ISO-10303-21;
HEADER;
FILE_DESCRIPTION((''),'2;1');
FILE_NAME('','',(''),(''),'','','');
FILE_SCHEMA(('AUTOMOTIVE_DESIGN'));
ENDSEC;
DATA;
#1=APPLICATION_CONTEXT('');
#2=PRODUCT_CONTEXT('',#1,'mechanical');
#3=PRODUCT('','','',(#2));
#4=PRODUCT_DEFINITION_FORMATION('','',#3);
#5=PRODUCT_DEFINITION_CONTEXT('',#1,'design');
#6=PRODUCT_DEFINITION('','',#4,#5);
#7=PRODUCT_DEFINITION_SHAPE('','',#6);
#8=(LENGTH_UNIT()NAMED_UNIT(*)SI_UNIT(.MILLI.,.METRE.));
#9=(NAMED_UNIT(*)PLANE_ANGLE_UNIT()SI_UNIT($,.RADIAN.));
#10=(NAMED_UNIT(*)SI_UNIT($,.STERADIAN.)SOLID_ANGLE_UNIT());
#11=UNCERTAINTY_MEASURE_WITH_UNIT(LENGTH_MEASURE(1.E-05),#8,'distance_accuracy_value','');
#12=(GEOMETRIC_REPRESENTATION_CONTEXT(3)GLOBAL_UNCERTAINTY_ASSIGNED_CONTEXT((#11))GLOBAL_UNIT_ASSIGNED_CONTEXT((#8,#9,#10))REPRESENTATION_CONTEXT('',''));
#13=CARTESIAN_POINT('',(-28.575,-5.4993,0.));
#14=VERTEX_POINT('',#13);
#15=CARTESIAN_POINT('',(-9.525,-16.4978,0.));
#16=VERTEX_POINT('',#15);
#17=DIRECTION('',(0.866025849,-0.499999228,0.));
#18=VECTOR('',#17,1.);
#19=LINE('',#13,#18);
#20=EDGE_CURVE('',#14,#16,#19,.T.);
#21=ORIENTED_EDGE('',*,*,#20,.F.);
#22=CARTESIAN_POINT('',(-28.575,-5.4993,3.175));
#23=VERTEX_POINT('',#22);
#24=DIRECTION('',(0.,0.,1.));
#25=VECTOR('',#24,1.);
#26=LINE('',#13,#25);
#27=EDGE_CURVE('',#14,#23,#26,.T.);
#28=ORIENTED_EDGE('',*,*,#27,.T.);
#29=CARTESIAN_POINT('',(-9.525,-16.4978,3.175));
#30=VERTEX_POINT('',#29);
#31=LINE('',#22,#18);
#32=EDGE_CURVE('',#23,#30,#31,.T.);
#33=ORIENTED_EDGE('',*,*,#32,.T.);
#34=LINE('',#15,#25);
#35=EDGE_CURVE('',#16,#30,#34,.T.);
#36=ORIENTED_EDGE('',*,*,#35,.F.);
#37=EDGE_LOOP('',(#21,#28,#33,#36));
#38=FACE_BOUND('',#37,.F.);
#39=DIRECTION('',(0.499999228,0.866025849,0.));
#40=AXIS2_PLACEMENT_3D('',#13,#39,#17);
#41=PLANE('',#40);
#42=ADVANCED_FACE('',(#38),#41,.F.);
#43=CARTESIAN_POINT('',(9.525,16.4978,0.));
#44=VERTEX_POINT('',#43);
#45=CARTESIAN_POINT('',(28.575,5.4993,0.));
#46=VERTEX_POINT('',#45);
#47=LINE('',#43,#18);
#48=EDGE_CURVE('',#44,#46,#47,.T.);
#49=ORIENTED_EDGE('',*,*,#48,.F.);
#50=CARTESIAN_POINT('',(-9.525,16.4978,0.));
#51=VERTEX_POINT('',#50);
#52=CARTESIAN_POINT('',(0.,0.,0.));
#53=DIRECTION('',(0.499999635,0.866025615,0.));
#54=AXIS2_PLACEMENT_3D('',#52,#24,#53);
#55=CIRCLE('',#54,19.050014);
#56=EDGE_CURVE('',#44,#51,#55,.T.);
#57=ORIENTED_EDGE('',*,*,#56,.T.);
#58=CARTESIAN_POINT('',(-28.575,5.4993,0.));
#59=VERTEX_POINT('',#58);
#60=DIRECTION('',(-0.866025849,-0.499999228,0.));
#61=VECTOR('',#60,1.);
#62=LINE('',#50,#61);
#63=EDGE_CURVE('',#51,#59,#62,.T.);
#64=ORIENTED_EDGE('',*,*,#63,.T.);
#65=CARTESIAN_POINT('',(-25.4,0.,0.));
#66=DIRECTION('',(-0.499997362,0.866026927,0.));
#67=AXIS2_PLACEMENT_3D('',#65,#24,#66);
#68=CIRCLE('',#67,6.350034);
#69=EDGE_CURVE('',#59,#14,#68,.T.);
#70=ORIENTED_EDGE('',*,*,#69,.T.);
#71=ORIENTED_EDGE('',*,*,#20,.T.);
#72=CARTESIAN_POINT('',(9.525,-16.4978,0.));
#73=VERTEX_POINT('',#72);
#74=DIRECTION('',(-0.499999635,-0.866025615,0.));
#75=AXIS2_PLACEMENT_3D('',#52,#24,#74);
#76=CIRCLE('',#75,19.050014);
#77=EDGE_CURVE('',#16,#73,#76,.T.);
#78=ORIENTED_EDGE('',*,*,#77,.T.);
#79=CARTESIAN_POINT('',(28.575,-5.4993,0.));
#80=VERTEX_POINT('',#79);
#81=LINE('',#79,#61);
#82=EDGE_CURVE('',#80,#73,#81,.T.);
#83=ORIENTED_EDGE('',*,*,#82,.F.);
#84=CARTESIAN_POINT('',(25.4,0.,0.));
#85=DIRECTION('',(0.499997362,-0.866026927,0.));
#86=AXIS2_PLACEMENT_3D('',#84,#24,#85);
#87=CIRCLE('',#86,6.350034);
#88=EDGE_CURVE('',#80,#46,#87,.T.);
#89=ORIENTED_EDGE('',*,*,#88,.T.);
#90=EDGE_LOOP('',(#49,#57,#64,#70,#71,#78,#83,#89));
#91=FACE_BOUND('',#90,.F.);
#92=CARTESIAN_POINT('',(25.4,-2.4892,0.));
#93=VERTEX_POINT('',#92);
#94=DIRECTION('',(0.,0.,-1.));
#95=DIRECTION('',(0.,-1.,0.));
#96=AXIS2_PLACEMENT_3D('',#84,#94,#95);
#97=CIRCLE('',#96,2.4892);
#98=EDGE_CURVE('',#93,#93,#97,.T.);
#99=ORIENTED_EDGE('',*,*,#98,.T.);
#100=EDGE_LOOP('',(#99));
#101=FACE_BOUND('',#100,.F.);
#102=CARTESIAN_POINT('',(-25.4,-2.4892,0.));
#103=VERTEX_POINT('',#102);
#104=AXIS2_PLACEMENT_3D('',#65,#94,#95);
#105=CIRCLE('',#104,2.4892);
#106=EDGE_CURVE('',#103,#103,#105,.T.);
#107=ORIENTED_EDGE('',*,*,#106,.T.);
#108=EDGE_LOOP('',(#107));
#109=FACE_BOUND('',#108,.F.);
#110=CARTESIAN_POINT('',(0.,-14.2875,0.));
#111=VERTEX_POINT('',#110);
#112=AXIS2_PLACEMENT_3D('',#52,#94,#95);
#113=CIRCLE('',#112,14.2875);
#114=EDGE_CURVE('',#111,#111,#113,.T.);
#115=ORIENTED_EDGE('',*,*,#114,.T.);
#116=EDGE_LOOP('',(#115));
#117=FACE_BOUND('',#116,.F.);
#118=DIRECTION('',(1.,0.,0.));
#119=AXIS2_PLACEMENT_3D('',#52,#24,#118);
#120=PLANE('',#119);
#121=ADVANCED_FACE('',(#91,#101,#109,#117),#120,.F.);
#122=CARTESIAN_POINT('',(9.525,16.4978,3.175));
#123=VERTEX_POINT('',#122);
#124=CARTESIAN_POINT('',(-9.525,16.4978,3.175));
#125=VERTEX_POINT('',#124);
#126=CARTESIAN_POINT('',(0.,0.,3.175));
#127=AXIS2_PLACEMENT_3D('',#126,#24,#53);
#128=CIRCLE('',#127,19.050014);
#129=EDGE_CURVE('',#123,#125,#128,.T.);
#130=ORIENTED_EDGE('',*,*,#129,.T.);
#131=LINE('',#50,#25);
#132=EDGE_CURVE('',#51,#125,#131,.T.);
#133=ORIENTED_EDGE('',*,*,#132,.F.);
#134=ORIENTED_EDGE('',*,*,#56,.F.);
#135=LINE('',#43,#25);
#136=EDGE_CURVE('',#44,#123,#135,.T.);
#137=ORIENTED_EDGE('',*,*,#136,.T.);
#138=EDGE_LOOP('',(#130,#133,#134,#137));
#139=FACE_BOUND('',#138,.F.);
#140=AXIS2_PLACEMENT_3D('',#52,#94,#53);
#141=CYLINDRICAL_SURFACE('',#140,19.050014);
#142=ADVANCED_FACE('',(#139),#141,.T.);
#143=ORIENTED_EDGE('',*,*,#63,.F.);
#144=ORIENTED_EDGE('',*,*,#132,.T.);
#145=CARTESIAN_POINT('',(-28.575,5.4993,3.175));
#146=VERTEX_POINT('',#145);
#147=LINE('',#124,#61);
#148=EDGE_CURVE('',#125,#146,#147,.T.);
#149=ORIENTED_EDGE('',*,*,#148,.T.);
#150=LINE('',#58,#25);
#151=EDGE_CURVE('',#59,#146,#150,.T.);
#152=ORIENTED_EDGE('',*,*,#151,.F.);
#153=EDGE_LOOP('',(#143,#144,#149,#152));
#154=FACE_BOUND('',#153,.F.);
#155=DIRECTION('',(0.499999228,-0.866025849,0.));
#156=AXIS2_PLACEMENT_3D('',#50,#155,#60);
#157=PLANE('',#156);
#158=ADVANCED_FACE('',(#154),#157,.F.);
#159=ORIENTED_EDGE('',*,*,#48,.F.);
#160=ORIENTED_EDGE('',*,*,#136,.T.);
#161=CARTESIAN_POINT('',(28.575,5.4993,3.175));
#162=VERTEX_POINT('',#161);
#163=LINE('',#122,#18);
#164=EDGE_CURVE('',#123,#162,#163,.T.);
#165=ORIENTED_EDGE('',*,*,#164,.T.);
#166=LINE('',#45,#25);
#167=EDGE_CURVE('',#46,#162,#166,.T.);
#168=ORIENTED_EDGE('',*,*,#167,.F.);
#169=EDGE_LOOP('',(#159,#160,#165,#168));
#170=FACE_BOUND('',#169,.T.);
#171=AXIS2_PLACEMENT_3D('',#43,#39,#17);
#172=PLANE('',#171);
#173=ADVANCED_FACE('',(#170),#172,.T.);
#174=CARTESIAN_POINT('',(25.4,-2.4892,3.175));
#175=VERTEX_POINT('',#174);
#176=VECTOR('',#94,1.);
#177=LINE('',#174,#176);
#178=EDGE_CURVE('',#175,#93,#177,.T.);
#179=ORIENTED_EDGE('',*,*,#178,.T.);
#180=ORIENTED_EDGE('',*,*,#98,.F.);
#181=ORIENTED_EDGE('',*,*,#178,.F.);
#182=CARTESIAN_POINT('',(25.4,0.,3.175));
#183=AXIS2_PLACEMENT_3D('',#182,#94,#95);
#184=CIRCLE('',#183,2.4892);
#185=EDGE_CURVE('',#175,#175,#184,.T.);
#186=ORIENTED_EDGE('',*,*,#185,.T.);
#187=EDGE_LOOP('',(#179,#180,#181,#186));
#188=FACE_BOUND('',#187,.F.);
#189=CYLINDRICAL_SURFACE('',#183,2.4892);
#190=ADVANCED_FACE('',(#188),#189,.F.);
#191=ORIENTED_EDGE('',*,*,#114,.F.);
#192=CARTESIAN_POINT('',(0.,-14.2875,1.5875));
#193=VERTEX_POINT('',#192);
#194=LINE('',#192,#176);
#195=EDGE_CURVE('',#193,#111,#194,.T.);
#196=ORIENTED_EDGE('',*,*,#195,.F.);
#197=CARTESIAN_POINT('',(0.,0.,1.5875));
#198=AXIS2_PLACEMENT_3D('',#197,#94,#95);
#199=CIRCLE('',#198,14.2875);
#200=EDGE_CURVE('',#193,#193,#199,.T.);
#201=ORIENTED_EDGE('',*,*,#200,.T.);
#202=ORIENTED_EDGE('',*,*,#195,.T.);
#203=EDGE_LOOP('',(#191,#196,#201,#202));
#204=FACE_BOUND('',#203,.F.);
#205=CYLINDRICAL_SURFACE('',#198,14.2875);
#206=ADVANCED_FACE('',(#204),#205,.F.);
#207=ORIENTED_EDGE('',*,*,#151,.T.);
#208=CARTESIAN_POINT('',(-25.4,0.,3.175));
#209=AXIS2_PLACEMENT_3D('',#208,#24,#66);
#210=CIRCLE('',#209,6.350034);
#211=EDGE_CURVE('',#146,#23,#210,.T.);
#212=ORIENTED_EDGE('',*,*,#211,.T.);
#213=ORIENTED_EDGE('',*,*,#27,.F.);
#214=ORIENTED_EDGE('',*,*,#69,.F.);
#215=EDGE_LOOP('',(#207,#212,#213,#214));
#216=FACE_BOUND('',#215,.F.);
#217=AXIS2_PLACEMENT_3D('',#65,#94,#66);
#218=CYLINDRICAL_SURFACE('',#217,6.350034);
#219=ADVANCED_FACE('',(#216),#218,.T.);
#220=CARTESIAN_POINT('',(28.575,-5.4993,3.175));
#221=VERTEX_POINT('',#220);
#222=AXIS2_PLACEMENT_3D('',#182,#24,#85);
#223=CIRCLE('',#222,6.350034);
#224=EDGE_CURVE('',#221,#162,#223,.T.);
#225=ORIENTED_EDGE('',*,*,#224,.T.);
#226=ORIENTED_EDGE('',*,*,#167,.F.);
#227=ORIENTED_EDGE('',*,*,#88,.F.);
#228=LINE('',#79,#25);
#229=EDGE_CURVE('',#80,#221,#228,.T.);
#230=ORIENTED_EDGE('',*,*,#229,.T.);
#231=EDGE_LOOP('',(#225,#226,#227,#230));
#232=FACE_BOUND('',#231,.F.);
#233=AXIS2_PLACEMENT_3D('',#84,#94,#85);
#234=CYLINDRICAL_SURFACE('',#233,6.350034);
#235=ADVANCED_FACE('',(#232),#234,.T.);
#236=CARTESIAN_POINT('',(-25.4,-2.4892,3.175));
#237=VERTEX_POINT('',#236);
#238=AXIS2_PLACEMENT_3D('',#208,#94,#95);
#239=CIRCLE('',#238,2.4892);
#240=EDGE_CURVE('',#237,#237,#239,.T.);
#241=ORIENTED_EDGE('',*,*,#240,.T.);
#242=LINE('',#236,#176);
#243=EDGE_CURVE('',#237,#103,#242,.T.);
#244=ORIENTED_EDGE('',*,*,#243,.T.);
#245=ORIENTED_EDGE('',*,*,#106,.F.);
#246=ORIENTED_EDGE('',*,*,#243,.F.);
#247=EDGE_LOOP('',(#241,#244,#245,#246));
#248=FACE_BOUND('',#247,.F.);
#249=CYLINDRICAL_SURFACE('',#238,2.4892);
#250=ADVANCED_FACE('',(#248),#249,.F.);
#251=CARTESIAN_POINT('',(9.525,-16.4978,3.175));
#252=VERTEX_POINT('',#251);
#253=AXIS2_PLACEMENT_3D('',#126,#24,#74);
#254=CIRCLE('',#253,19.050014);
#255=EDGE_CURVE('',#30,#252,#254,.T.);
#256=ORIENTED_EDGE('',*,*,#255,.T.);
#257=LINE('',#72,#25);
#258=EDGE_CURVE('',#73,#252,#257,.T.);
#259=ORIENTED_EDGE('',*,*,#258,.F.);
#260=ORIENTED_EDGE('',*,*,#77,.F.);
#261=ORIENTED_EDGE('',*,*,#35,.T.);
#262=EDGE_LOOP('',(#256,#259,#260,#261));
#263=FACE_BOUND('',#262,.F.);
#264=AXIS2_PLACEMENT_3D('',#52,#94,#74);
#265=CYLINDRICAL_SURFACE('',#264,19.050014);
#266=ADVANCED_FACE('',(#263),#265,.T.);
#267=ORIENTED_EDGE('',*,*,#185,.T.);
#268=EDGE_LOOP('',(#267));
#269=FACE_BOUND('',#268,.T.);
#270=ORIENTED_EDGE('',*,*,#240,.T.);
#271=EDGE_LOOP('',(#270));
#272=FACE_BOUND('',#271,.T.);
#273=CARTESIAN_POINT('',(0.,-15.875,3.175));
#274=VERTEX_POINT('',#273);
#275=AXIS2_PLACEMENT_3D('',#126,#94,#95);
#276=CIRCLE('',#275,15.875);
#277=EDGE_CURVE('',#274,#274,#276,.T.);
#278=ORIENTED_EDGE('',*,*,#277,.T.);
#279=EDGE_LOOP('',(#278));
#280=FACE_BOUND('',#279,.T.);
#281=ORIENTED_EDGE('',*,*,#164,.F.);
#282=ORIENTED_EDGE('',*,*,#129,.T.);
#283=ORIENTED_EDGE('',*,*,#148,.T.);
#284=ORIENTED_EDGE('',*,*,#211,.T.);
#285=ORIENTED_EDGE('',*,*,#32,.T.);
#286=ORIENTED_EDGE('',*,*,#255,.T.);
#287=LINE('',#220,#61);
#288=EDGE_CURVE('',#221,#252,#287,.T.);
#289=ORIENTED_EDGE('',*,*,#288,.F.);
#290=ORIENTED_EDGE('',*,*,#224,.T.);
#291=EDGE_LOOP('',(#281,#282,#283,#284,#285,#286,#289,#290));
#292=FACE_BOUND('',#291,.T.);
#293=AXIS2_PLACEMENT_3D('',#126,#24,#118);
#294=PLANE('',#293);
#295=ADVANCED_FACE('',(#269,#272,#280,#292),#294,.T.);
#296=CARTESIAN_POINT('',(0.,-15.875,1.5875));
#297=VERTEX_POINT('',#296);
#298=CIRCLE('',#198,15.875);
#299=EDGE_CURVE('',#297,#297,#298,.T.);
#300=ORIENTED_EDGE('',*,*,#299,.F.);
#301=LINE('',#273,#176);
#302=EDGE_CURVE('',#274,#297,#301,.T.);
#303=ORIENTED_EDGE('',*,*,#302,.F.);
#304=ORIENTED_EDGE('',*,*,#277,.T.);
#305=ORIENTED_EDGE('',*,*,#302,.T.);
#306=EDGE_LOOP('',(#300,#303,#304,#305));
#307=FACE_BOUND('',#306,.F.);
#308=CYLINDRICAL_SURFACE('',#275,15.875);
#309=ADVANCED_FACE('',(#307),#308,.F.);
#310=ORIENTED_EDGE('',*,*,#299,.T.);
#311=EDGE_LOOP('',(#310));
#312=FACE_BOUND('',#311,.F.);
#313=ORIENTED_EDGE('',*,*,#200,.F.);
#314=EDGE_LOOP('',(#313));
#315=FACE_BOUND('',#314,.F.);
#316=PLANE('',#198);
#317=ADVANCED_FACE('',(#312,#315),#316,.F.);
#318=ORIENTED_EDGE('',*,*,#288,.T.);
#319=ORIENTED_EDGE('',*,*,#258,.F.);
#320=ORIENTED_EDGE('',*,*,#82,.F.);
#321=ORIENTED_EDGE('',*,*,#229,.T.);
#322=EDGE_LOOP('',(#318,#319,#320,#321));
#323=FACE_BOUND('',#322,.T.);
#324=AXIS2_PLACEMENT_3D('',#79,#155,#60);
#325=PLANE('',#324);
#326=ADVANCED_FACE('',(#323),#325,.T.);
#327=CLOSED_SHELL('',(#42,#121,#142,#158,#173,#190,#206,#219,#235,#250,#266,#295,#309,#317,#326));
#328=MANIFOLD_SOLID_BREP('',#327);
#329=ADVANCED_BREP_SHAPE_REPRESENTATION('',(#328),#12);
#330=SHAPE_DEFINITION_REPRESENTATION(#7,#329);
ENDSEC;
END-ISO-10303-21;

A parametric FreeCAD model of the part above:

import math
import FreeCAD as App
import Part
import Sketcher
Q = App.Units.Quantity

doc = App.newDocument("Part")
body = doc.addObject("PartDesign::Body", "Body")

# Sketch on XY plane
sketch1 = doc.addObject("Sketcher::SketchObject", "Sketch")
body.addObject(sketch1)
sketch1.AttachmentSupport = (doc.XY_Plane, [""])
sketch1.MapMode = "FlatFace"
sketch1.addGeometry(Part.ArcOfCircle(Part.Circle(App.Vector(0, 0, 0), App.Vector(0, 0, 1), 19.050014), math.radians(60.000024), math.radians(119.999976)), False)
sketch1.addGeometry(Part.LineSegment(App.Vector(-9.525, 16.4978, 0), App.Vector(-28.575, 5.4993, 0)), False)
sketch1.addGeometry(Part.ArcOfCircle(Part.Circle(App.Vector(-25.4, 0, 0), App.Vector(0, 0, 1), 6.350034), math.radians(119.999825), math.radians(240.000175)), False)
sketch1.addGeometry(Part.LineSegment(App.Vector(-28.575, -5.4993, 0), App.Vector(-9.525, -16.4978, 0)), False)
sketch1.addGeometry(Part.ArcOfCircle(Part.Circle(App.Vector(0, 0, 0), App.Vector(0, 0, 1), 19.050014), math.radians(-119.999976), math.radians(-60.000024)), False)
sketch1.addGeometry(Part.LineSegment(App.Vector(9.525, -16.4978, 0), App.Vector(28.575, -5.4993, 0)), False)
sketch1.addGeometry(Part.ArcOfCircle(Part.Circle(App.Vector(25.4, 0, 0), App.Vector(0, 0, 1), 6.350034), math.radians(-60.000175), math.radians(60.000175)), False)
sketch1.addGeometry(Part.LineSegment(App.Vector(28.575, 5.4993, 0), App.Vector(9.525, 16.4978, 0)), False)
sketch1.addConstraint(Sketcher.Constraint("Tangent", 0, 2, 1, 1))
sketch1.addConstraint(Sketcher.Constraint("Tangent", 1, 2, 2, 1))
sketch1.addConstraint(Sketcher.Constraint("Tangent", 2, 2, 3, 1))
sketch1.addConstraint(Sketcher.Constraint("Tangent", 3, 2, 4, 1))
sketch1.addConstraint(Sketcher.Constraint("Tangent", 4, 2, 5, 1))
sketch1.addConstraint(Sketcher.Constraint("Tangent", 5, 2, 6, 1))
sketch1.addConstraint(Sketcher.Constraint("Tangent", 6, 2, 7, 1))
sketch1.addConstraint(Sketcher.Constraint("Tangent", 7, 2, 0, 1))
sketch1.addConstraint(Sketcher.Constraint("Coincident", 0, 3, -1, 1))
sketch1.addConstraint(Sketcher.Constraint("Coincident", 4, 3, -1, 1))
sketch1.addConstraint(Sketcher.Constraint("Equal", 0, 4))
sketch1.addConstraint(Sketcher.Constraint("Equal", 2, 6))
sketch1.addConstraint(Sketcher.Constraint("Symmetric", 2, 3, 6, 3, -1, 1))
sketch1.addConstraint(Sketcher.Constraint("PointOnObject", 2, 3, -1))
sketch1.addConstraint(Sketcher.Constraint("Radius", 0, Q("0.75 in")))
sketch1.addConstraint(Sketcher.Constraint("Radius", 2, Q("0.25 in")))
sketch1.addConstraint(Sketcher.Constraint("DistanceX", 2, 3, 6, 3, Q("2 in")))
pad1 = doc.addObject("PartDesign::Pad", "Pad")
body.addObject(pad1)
pad1.Profile = sketch1
pad1.Length = Q("0.125 in")

# Sketch on XY plane
sketch2 = doc.addObject("Sketcher::SketchObject", "Sketch001")
body.addObject(sketch2)
sketch2.AttachmentSupport = (doc.XY_Plane, [""])
sketch2.MapMode = "FlatFace"
sketch2.AttachmentOffset = App.Placement(App.Vector(0, 0, 0.125 * 25.4), App.Rotation())
sketch2.addGeometry(Part.Circle(App.Vector(0, 0, 0), App.Vector(0, 0, 1), 14.2875), False)
sketch2.addConstraint(Sketcher.Constraint("Coincident", 0, 3, -1, 1))
sketch2.addConstraint(Sketcher.Constraint("Diameter", 0, Q("1.125 in")))
doc.recompute()
hole = doc.addObject("PartDesign::Hole", "Hole")
body.addObject(hole)
hole.Profile = sketch2
hole.ThreadType = "None"
hole.Diameter = Q("1.125 in")
hole.DepthType = "ThroughAll"
hole.HoleCutType = "Counterbore"
hole.HoleCutDiameter = Q("1.25 in")
hole.HoleCutDepth = Q("0.0625 in")

# Sketch on XY plane
sketch3 = doc.addObject("Sketcher::SketchObject", "Sketch002")
body.addObject(sketch3)
sketch3.AttachmentSupport = (doc.XY_Plane, [""])
sketch3.MapMode = "FlatFace"
sketch3.AttachmentOffset = App.Placement(App.Vector(0, 0, 0.125 * 25.4), App.Rotation())
sketch3.addGeometry(Part.Circle(App.Vector(-25.4, 0, 0), App.Vector(0, 0, 1), 2.4892), False)
sketch3.addGeometry(Part.Circle(App.Vector(25.4, 0, 0), App.Vector(0, 0, 1), 2.4892), False)
sketch3.addConstraint(Sketcher.Constraint("Equal", 0, 1))
sketch3.addConstraint(Sketcher.Constraint("Symmetric", 0, 3, 1, 3, -1, 1))
sketch3.addConstraint(Sketcher.Constraint("PointOnObject", 0, 3, -1))
sketch3.addConstraint(Sketcher.Constraint("Diameter", 0, Q("0.196 in")))
sketch3.addConstraint(Sketcher.Constraint("DistanceX", 0, 3, -1, 1, Q("1 in")))
doc.recompute()
hole2 = doc.addObject("PartDesign::Hole", "Hole001")
body.addObject(hole2)
hole2.Profile = sketch3
hole2.ThreadType = "None"
hole2.Diameter = Q("0.196 in")
hole2.DepthType = "ThroughAll"

doc.recompute()
